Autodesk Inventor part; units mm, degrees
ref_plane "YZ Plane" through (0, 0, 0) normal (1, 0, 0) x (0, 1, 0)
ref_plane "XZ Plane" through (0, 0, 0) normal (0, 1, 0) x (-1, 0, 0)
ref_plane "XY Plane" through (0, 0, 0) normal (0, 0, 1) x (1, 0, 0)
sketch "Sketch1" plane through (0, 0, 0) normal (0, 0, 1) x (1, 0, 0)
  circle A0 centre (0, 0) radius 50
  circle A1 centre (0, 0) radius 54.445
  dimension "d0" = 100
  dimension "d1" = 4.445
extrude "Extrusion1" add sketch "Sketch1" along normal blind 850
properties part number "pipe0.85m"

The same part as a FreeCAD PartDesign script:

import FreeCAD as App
import Part
import Sketcher
Q = App.Units.Quantity

doc = App.newDocument("Part")
body = doc.addObject("PartDesign::Body", "Body")

sketch1 = body.newObject("Sketcher::SketchObject", "Sketch")
sketch1.AttachmentSupport = (doc.getObject("XY_Plane"), [""])
sketch1.MapMode = "FlatFace"
sketch1.addGeometry(Part.Circle(App.Vector(0, 0, 0), App.Vector(0, 0, 1), 54.445), False)
sketch1.addGeometry(Part.Circle(App.Vector(0, 0, 0), App.Vector(0, 0, 1), 50), False)
sketch1.addConstraint(Sketcher.Constraint("Coincident", 0, 3, -1, 1))
sketch1.addConstraint(Sketcher.Constraint("Coincident", 1, 3, -1, 1))
sketch1.addConstraint(Sketcher.Constraint("Diameter", 1, Q("3.937 in")))
sketch1.addConstraint(Sketcher.Constraint("Diameter", 0, Q("4.287 in")))
pad1 = body.newObject("PartDesign::Pad", "Pad")
pad1.Profile = sketch1
pad1.Length = 850

doc.recompute()
